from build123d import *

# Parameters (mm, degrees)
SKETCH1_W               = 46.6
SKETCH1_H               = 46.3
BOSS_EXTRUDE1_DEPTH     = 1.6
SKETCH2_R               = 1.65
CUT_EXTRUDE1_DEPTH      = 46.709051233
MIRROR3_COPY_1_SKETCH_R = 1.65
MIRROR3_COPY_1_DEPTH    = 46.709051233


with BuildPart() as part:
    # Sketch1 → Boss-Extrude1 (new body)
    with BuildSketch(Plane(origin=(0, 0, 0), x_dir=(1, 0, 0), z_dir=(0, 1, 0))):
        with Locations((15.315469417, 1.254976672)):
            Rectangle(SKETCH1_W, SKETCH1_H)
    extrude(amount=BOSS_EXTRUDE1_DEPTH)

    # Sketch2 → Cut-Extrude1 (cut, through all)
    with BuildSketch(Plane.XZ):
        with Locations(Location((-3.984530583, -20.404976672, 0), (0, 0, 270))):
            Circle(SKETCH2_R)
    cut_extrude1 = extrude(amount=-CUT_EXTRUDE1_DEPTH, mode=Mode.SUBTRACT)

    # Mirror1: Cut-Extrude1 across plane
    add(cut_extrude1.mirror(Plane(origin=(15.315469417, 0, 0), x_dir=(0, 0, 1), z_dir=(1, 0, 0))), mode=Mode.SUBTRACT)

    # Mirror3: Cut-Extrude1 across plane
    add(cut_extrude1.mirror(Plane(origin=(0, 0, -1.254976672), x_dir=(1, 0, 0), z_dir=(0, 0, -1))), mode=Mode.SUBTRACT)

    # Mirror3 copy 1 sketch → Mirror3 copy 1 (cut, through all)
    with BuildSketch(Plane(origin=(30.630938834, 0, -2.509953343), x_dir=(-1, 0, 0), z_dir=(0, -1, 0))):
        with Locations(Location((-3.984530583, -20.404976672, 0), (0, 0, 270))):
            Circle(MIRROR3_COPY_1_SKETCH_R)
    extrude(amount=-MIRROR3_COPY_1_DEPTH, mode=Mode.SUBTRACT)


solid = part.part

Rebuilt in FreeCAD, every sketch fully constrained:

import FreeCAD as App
import Part
import Sketcher
from FreeCAD import Vector


def add_polygon(sketch, points):
    """Adds a closed chain of lines whose ends are joined by coincident constraints."""
    first, n = sketch.GeometryCount, len(points)
    for a, b in zip(points, points[1:] + points[:1]):
        sketch.addGeometry(Part.LineSegment(App.Vector(*a, 0), App.Vector(*b, 0)), False)
    for i in range(n):
        sketch.addConstraint(Sketcher.Constraint("Coincident", first + i, 2, first + (i + 1) % n, 1))

doc = App.newDocument("Part")
body = doc.addObject("PartDesign::Body", "Body")

sketch1 = doc.addObject("Sketcher::SketchObject", "Sketch")
body.addObject(sketch1)
sketch1.AttachmentSupport = (doc.XZ_Plane, [""])
sketch1.MapMode = "FlatFace"
add_polygon(sketch1, [(-7.984531, -24.404977), (-7.984531, 21.895023), (38.615469, 21.895023), (38.615469, -24.404977)])
sketch1.addConstraint([
    Sketcher.Constraint("Vertical", 0),
    Sketcher.Constraint("Horizontal", 1),
    Sketcher.Constraint("Vertical", 2),
    Sketcher.Constraint("Horizontal", 3),
    Sketcher.Constraint("DistanceX", 1, 1, 1, 2, 46.6),
    Sketcher.Constraint("DistanceY", 0, 1, 0, 2, 46.3),
    Sketcher.Constraint("DistanceX", 0, 2, -1, 1, 7.984531),
    Sketcher.Constraint("DistanceY", -1, 1, 0, 2, 21.895023),
])
pad1 = doc.addObject("PartDesign::Pad", "Pad")
body.addObject(pad1)
pad1.Profile = sketch1
pad1.Length = 1.6
pad1.Reversed = True

sketch2 = doc.addObject("Sketcher::SketchObject", "Sketch001")
body.addObject(sketch2)
sketch2.AttachmentSupport = (doc.XZ_Plane, [""])
sketch2.MapMode = "FlatFace"
sketch2.addGeometry(Part.Circle(Vector(-3.984531, -20.404977, 0), Vector(0, 0, 1), 1.65), False)
sketch2.addConstraint([
    Sketcher.Constraint("Diameter", 0, 3.3),
    Sketcher.Constraint("DistanceX", 0, 3, -1, 1, 3.984531),
    Sketcher.Constraint("DistanceY", 0, 3, -1, 1, 20.404977),
])
pocket1 = doc.addObject("PartDesign::Pocket", "Pocket")
body.addObject(pocket1)
pocket1.Profile = sketch2
pocket1.Type = "ThroughAll"
doc.recompute()

datumplane = doc.addObject("PartDesign::Plane", "DatumPlane")
body.addObject(datumplane)
datumplane.AttachmentSupport = (doc.YZ_Plane, [""])
datumplane.MapMode = "FlatFace"
datumplane.AttachmentOffset = App.Placement(Vector(0, 0, 15.315469), App.Rotation())
mirrored = doc.addObject("PartDesign::Mirrored", "Mirrored")
body.addObject(mirrored)
mirrored.Originals = [pocket1]
mirrored.MirrorPlane = (datumplane, [""])
body.Tip = mirrored
doc.recompute()

datumplane2 = doc.addObject("PartDesign::Plane", "DatumPlane001")
body.addObject(datumplane2)
datumplane2.AttachmentSupport = (doc.XY_Plane, [""])
datumplane2.MapMode = "FlatFace"
datumplane2.AttachmentOffset = App.Placement(Vector(0, 0, -1.254977), App.Rotation())
mirrored2 = doc.addObject("PartDesign::Mirrored", "Mirrored001")
body.addObject(mirrored2)
mirrored2.Originals = [pocket1]
mirrored2.MirrorPlane = (datumplane2, [""])
body.Tip = mirrored2

sketch3 = doc.addObject("Sketcher::SketchObject", "Sketch002")
body.addObject(sketch3)
sketch3.AttachmentSupport = (doc.XZ_Plane, [""])
sketch3.MapMode = "FlatFace"
sketch3.addGeometry(Part.Circle(Vector(34.615469, 17.895023, 0), Vector(0, 0, 1), 1.65), False)
sketch3.addConstraint([
    Sketcher.Constraint("Diameter", 0, 3.3),
    Sketcher.Constraint("DistanceX", -1, 1, 0, 3, 34.615469),
    Sketcher.Constraint("DistanceY", -1, 1, 0, 3, 17.895023),
])
pocket2 = doc.addObject("PartDesign::Pocket", "Pocket001")
body.addObject(pocket2)
pocket2.Profile = sketch3
pocket2.Type = "ThroughAll"

doc.recompute()
